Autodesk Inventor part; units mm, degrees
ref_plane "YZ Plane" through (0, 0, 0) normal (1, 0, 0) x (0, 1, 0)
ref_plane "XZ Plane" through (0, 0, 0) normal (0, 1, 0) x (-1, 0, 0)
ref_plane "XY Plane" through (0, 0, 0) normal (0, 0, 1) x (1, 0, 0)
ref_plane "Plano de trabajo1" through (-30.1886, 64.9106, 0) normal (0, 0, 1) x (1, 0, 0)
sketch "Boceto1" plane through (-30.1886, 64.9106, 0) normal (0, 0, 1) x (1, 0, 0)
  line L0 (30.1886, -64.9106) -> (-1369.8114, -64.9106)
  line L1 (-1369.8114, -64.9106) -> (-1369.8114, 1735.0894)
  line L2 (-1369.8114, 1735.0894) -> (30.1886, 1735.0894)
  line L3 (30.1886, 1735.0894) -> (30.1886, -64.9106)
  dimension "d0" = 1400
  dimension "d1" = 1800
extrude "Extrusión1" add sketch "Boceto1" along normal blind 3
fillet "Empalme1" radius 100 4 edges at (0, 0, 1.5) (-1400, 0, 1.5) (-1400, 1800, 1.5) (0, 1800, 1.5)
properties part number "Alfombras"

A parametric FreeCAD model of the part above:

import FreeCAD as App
import Part
import Sketcher

V = App.Vector


def edges_at(feature, points):
    """Names of the edges that pass closest to the given points."""
    edges = feature.Shape.Edges
    near = lambda p: min(range(len(edges)), key=lambda i: edges[i].distToShape(Part.Vertex(*p))[0])
    return sorted({f"Edge{near(p) + 1}" for p in points})

doc = App.newDocument("Part")
body = doc.addObject("PartDesign::Body", "Body")

sketch1 = doc.addObject("Sketcher::SketchObject", "Sketch")
body.addObject(sketch1)
sketch1.AttachmentSupport = (doc.XY_Plane, [""])
sketch1.MapMode = "FlatFace"
sketch1.addGeometry(Part.LineSegment(V(-1400, 0, 0), V(0, 0, 0)), False)
sketch1.addGeometry(Part.LineSegment(V(0, 0, 0), V(0, 1800, 0)), False)
sketch1.addGeometry(Part.LineSegment(V(0, 1800, 0), V(-1400, 1800, 0)), False)
sketch1.addGeometry(Part.LineSegment(V(-1400, 1800, 0), V(-1400, 0, 0)), False)
sketch1.addConstraint(Sketcher.Constraint("Coincident", 0, 2, 1, 1))
sketch1.addConstraint(Sketcher.Constraint("Coincident", 1, 2, 2, 1))
sketch1.addConstraint(Sketcher.Constraint("Coincident", 2, 2, 3, 1))
sketch1.addConstraint(Sketcher.Constraint("Coincident", 3, 2, 0, 1))
sketch1.addConstraint(Sketcher.Constraint("Horizontal", 0))
sketch1.addConstraint(Sketcher.Constraint("Vertical", 1))
sketch1.addConstraint(Sketcher.Constraint("Horizontal", 2))
sketch1.addConstraint(Sketcher.Constraint("Vertical", 3))
sketch1.addConstraint(Sketcher.Constraint("Coincident", 0, 2, -1, 1))
sketch1.addConstraint(Sketcher.Constraint("DistanceX", 0, 1, 0, 2, 1400.0))
sketch1.addConstraint(Sketcher.Constraint("DistanceY", 1, 1, 1, 2, 1800.0))
pad1 = doc.addObject("PartDesign::Pad", "Pad")
body.addObject(pad1)
pad1.Profile = sketch1
pad1.Length = 3
doc.recompute()

fillet = doc.addObject("PartDesign::Fillet", "Fillet")
body.addObject(fillet)
fillet.Base = (pad1, edges_at(pad1, [
    (0, 0, 1.5),
    (-1400, 0, 1.5),
    (-1400, 1800, 1.5),
    (0, 1800, 1.5),
]))
fillet.Radius = 100

doc.recompute()
